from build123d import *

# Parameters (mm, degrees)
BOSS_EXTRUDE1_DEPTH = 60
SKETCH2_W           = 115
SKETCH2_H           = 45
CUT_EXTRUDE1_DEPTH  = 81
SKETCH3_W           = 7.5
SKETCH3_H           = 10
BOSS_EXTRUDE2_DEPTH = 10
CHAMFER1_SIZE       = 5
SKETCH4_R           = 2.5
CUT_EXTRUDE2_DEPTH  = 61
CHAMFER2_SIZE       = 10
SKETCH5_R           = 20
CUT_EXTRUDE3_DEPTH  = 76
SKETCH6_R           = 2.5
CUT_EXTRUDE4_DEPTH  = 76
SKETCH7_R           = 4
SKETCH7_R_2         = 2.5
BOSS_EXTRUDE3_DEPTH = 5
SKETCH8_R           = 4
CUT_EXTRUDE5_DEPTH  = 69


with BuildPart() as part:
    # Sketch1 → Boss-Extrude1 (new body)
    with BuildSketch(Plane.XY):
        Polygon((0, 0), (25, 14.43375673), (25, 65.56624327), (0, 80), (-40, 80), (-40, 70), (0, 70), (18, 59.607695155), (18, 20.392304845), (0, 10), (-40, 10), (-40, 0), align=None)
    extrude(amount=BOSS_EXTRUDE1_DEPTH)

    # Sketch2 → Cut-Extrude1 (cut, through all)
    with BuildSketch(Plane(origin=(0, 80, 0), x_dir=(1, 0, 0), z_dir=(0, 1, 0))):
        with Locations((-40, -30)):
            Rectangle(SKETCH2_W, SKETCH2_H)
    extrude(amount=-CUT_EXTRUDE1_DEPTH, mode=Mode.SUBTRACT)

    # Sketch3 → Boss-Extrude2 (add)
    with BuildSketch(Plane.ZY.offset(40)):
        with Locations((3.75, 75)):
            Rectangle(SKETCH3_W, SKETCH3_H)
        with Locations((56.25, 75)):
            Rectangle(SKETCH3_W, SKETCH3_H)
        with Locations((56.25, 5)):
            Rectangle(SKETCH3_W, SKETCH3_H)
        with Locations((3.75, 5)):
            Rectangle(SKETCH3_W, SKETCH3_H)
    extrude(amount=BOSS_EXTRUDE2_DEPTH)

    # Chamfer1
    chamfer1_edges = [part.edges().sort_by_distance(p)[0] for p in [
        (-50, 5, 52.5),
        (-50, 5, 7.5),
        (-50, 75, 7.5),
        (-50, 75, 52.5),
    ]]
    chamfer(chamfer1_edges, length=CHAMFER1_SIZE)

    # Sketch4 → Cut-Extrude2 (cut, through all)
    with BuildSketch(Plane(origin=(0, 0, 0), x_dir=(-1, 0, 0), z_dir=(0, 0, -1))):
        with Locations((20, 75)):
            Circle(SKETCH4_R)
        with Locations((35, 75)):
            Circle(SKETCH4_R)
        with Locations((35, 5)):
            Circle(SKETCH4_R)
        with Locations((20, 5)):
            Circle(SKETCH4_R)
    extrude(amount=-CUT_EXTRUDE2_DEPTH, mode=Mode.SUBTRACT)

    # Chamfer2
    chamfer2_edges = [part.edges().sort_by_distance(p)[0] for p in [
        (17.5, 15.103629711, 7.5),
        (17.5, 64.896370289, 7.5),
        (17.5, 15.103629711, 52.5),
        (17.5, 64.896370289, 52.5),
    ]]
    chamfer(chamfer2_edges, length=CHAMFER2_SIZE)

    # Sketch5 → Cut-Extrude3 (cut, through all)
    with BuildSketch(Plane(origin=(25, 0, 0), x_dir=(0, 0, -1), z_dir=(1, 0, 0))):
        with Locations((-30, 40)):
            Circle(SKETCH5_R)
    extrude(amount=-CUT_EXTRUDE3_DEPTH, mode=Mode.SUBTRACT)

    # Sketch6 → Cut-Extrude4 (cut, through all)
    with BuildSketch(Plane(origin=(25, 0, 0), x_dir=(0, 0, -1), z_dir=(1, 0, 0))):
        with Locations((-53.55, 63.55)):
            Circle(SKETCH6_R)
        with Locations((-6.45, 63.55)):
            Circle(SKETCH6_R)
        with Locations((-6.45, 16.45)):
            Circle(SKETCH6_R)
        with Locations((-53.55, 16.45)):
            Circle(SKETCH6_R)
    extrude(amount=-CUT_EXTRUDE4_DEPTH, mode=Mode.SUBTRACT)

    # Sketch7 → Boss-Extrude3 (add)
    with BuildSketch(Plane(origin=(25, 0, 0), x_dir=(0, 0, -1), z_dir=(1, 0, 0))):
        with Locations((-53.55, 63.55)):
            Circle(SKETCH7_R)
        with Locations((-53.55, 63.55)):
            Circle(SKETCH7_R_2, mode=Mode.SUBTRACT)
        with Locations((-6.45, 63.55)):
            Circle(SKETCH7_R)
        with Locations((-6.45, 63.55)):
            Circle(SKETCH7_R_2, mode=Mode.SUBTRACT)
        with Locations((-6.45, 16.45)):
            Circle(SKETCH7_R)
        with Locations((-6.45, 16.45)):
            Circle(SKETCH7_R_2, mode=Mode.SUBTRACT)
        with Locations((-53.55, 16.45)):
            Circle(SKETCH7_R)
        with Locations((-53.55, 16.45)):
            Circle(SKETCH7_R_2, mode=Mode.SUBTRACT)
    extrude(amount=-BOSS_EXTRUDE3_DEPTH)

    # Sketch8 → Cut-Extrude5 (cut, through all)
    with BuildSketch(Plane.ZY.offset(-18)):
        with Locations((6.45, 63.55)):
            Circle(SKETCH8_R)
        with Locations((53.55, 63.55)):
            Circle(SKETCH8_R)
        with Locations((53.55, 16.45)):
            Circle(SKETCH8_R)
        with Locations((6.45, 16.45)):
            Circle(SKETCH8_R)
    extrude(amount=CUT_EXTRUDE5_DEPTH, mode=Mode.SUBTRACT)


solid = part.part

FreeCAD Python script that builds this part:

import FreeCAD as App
import Part
import Sketcher
Q = App.Units.Quantity


def edges_at(feature, points):
    """Names of the edges that pass closest to the given points."""
    edges = feature.Shape.Edges
    near = lambda p: min(range(len(edges)), key=lambda i: edges[i].distToShape(Part.Vertex(*p))[0])
    return sorted({f"Edge{near(p) + 1}" for p in points})


def add_polygon(sketch, points):
    """Adds a closed chain of lines whose ends are joined by coincident constraints."""
    first, n = sketch.GeometryCount, len(points)
    for a, b in zip(points, points[1:] + points[:1]):
        sketch.addGeometry(Part.LineSegment(App.Vector(*a, 0), App.Vector(*b, 0)), False)
    for i in range(n):
        sketch.addConstraint(Sketcher.Constraint("Coincident", first + i, 2, first + (i + 1) % n, 1))

doc = App.newDocument("Part")
body = doc.addObject("PartDesign::Body", "Body")

sketch1 = doc.addObject("Sketcher::SketchObject", "Sketch")
body.addObject(sketch1)
sketch1.AttachmentSupport = (doc.XY_Plane, [""])
sketch1.MapMode = "FlatFace"
add_polygon(sketch1, [(0, 0), (25, 14), (25, 66), (0, 80), (-40, 80), (-40, 70), (0, 70), (18, 60), (18, 20), (0, 10), (-40, 10), (-40, 0)])
sketch1.addConstraint([
    Sketcher.Constraint("Vertical", 1),
    Sketcher.Constraint("Horizontal", 3),
    Sketcher.Constraint("Vertical", 4),
    Sketcher.Constraint("Horizontal", 5),
    Sketcher.Constraint("Vertical", 7),
    Sketcher.Constraint("Horizontal", 9),
    Sketcher.Constraint("Vertical", 10),
    Sketcher.Constraint("Horizontal", 11),
    Sketcher.Constraint("Coincident", 11, 2, -1, 1),
    Sketcher.Constraint("PointOnObject", 2, 2, -2),
    Sketcher.Constraint("PointOnObject", 5, 2, -2),
    Sketcher.Constraint("PointOnObject", 8, 2, -2),
    Sketcher.Constraint("Parallel", 2, 6),
    Sketcher.Constraint("Parallel", 0, 8),
    Sketcher.Constraint("Vertical", 4, 2, 9, 2),
    Sketcher.Constraint("Equal", 4, 10),
    Sketcher.Constraint("Equal", 0, 2),
    Sketcher.Constraint("DistanceX", 3, 2, 3, 1, 40.0),
    Sketcher.Constraint("DistanceY", 4, 2, 4, 1, 10.0),
    Sketcher.Constraint("Angle", 0, Q("30 deg")),
    Sketcher.Constraint("DistanceX", -1, 1, 0, 2, 25.0),
    Sketcher.Constraint("DistanceY", -1, 1, 2, 2, 80.0),
    Sketcher.Constraint("DistanceX", -1, 1, 6, 2, 18.0),
])
pad1 = doc.addObject("PartDesign::Pad", "Pad")
body.addObject(pad1)
pad1.Profile = sketch1
pad1.Length = 60

sketch2 = doc.addObject("Sketcher::SketchObject", "Sketch001")
body.addObject(sketch2)
sketch2.AttachmentSupport = (doc.XZ_Plane, [""])
sketch2.MapMode = "FlatFace"
sketch2.AttachmentOffset = App.Placement(App.Vector(0, 0, -80), App.Rotation())
add_polygon(sketch2, [(-98, 8), (-98, 52), (18, 52), (18, 8)])
sketch2.addConstraint([
    Sketcher.Constraint("Vertical", 0),
    Sketcher.Constraint("Horizontal", 1),
    Sketcher.Constraint("Vertical", 2),
    Sketcher.Constraint("Horizontal", 3),
    Sketcher.Constraint("DistanceX", 1, 1, 1, 2, 115.0),
    Sketcher.Constraint("DistanceY", 0, 1, 0, 2, 45.0),
    Sketcher.Constraint("DistanceX", 0, 2, -1, 1, 97.5),
    Sketcher.Constraint("DistanceY", -1, 1, 0, 2, 52.5),
])
pocket1 = doc.addObject("PartDesign::Pocket", "Pocket")
body.addObject(pocket1)
pocket1.Profile = sketch2
pocket1.Type = "ThroughAll"
pocket1.Reversed = True

sketch3 = doc.addObject("Sketcher::SketchObject", "Sketch002")
body.addObject(sketch3)
sketch3.AttachmentSupport = (doc.YZ_Plane, [""])
sketch3.MapMode = "FlatFace"
sketch3.AttachmentOffset = App.Placement(App.Vector(0, 0, -40), App.Rotation())
add_polygon(sketch3, [(80, 0), (70, 0), (70, 8), (80, 8)])
add_polygon(sketch3, [(80, 52), (70, 52), (70, 60), (80, 60)])
add_polygon(sketch3, [(10, 52), (0, 52), (0, 60), (10, 60)])
add_polygon(sketch3, [(10, 0), (0, 0), (0, 8), (10, 8)])
sketch3.addConstraint([
    Sketcher.Constraint("Horizontal", 0),
    Sketcher.Constraint("Vertical", 1),
    Sketcher.Constraint("Horizontal", 2),
    Sketcher.Constraint("Vertical", 3),
    Sketcher.Constraint("Horizontal", 4),
    Sketcher.Constraint("Vertical", 5),
    Sketcher.Constraint("Horizontal", 6),
    Sketcher.Constraint("Vertical", 7),
    Sketcher.Constraint("Horizontal", 8),
    Sketcher.Constraint("Vertical", 9),
    Sketcher.Constraint("Horizontal", 10),
    Sketcher.Constraint("Vertical", 11),
    Sketcher.Constraint("Horizontal", 12),
    Sketcher.Constraint("Vertical", 13),
    Sketcher.Constraint("Horizontal", 14),
    Sketcher.Constraint("Vertical", 15),
    Sketcher.Constraint("Coincident", 12, 2, -1, 1),
    Sketcher.Constraint("PointOnObject", 0, 2, -1),
    Sketcher.Constraint("PointOnObject", 8, 2, -2),
    Sketcher.Constraint("Horizontal", 7, 2, 8, 2),
    Sketcher.Constraint("Horizontal", 6, 2, 9, 2),
    Sketcher.Constraint("Horizontal", 2, 2, 13, 2),
    Sketcher.Constraint("Vertical", 1, 2, 4, 2),
    Sketcher.Constraint("Vertical", 3, 2, 6, 2),
    Sketcher.Constraint("Vertical", 11, 2, 14, 2),
    Sketcher.Constraint("Equal", 6, 8),
    Sketcher.Constraint("Equal", 3, 5),
    Sketcher.Constraint("DistanceX", 0, 2, 0, 1, 10.0),
    Sketcher.Constraint("DistanceY", 1, 1, 1, 2, 7.5),
    Sketcher.Constraint("DistanceX", -1, 1, 0, 2, 70.0),
    Sketcher.Constraint("DistanceY", -1, 1, 5, 2, 60.0),
])
pad2 = doc.addObject("PartDesign::Pad", "Pad001")
body.addObject(pad2)
pad2.Profile = sketch3
pad2.Length = 10
pad2.Reversed = True
doc.recompute()

chamfer = doc.addObject("PartDesign::Chamfer", "Chamfer")
body.addObject(chamfer)
chamfer.Base = (pad2, edges_at(pad2, [
    (-50, 5, 52.5),
    (-50, 5, 7.5),
    (-50, 75, 7.5),
    (-50, 75, 52.5),
]))
chamfer.Size = 5

sketch4 = doc.addObject("Sketcher::SketchObject", "Sketch003")
body.addObject(sketch4)
sketch4.AttachmentSupport = (doc.XY_Plane, [""])
sketch4.MapMode = "FlatFace"
sketch4.addGeometry([
    Part.Circle(App.Vector(-20, 75, 0), App.Vector(0, 0, 1), 2.5),
    Part.Circle(App.Vector(-35, 75, 0), App.Vector(0, 0, 1), 2.5),
    Part.Circle(App.Vector(-35, 5, 0), App.Vector(0, 0, 1), 2.5),
    Part.Circle(App.Vector(-20, 5, 0), App.Vector(0, 0, 1), 2.5),
], False)
sketch4.addConstraint([
    Sketcher.Constraint("Equal", 0, 1),
    Sketcher.Constraint("Equal", 1, 2),
    Sketcher.Constraint("Equal", 2, 3),
    Sketcher.Constraint("Horizontal", 0, 3, 1, 3),
    Sketcher.Constraint("Horizontal", 2, 3, 3, 3),
    Sketcher.Constraint("Vertical", 1, 3, 2, 3),
    Sketcher.Constraint("Vertical", 0, 3, 3, 3),
    Sketcher.Constraint("Diameter", 0, 5.0),
    Sketcher.Constraint("DistanceX", 0, 3, -1, 1, 20.0),
    Sketcher.Constraint("DistanceY", -1, 1, 0, 3, 75.0),
    Sketcher.Constraint("DistanceX", 1, 3, -1, 1, 35.0),
    Sketcher.Constraint("DistanceY", -1, 1, 2, 3, 5.0),
])
pocket2 = doc.addObject("PartDesign::Pocket", "Pocket001")
body.addObject(pocket2)
pocket2.Profile = sketch4
pocket2.Type = "ThroughAll"
pocket2.Reversed = True
doc.recompute()

chamfer2 = doc.addObject("PartDesign::Chamfer", "Chamfer001")
body.addObject(chamfer2)
chamfer2.Base = (pocket2, edges_at(pocket2, [
    (17.5, 15.104, 7.5),
    (17.5, 64.896, 7.5),
    (17.5, 15.104, 52.5),
    (17.5, 64.896, 52.5),
]))
chamfer2.Size = 10

sketch5 = doc.addObject("Sketcher::SketchObject", "Sketch004")
body.addObject(sketch5)
sketch5.AttachmentSupport = (doc.YZ_Plane, [""])
sketch5.MapMode = "FlatFace"
sketch5.AttachmentOffset = App.Placement(App.Vector(0, 0, 25), App.Rotation())
sketch5.addGeometry(Part.Circle(App.Vector(40, 30, 0), App.Vector(0, 0, 1), 20), False)
sketch5.addConstraint([
    Sketcher.Constraint("Diameter", 0, 40.0),
    Sketcher.Constraint("DistanceX", -1, 1, 0, 3, 40.0),
    Sketcher.Constraint("DistanceY", -1, 1, 0, 3, 30.0),
])
pocket3 = doc.addObject("PartDesign::Pocket", "Pocket002")
body.addObject(pocket3)
pocket3.Profile = sketch5
pocket3.Type = "ThroughAll"

sketch6 = doc.addObject("Sketcher::SketchObject", "Sketch005")
body.addObject(sketch6)
sketch6.AttachmentSupport = (doc.YZ_Plane, [""])
sketch6.MapMode = "FlatFace"
sketch6.AttachmentOffset = App.Placement(App.Vector(0, 0, 25), App.Rotation())
sketch6.addGeometry([
    Part.Circle(App.Vector(63.5, 53.5, 0), App.Vector(0, 0, 1), 2.5),
    Part.Circle(App.Vector(63.5, 6.5, 0), App.Vector(0, 0, 1), 2.5),
    Part.Circle(App.Vector(16.4, 6.5, 0), App.Vector(0, 0, 1), 2.5),
    Part.Circle(App.Vector(16.4, 53.5, 0), App.Vector(0, 0, 1), 2.5),
], False)
sketch6.addConstraint([
    Sketcher.Constraint("Equal", 0, 1),
    Sketcher.Constraint("Equal", 1, 2),
    Sketcher.Constraint("Equal", 2, 3),
    Sketcher.Constraint("Horizontal", 1, 3, 2, 3),
    Sketcher.Constraint("Horizontal", 0, 3, 3, 3),
    Sketcher.Constraint("Vertical", 0, 3, 1, 3),
    Sketcher.Constraint("Vertical", 2, 3, 3, 3),
    Sketcher.Constraint("Diameter", 0, 5.0),
    Sketcher.Constraint("DistanceY", 1, 3, 0, 3, 47.1),
    Sketcher.Constraint("DistanceX", 2, 3, 1, 3, 47.1),
    Sketcher.Constraint("DistanceX", -1, 1, 0, 3, 63.55),
    Sketcher.Constraint("DistanceY", -1, 1, 0, 3, 53.55),
])
pocket4 = doc.addObject("PartDesign::Pocket", "Pocket003")
body.addObject(pocket4)
pocket4.Profile = sketch6
pocket4.Type = "ThroughAll"

sketch7 = doc.addObject("Sketcher::SketchObject", "Sketch006")
body.addObject(sketch7)
sketch7.AttachmentSupport = (doc.YZ_Plane, [""])
sketch7.MapMode = "FlatFace"
sketch7.AttachmentOffset = App.Placement(App.Vector(0, 0, 25), App.Rotation())
sketch7.addGeometry([
    Part.Circle(App.Vector(63.5, 53.5, 0), App.Vector(0, 0, 1), 4),
    Part.Circle(App.Vector(63.5, 53.5, 0), App.Vector(0, 0, 1), 2.5),
    Part.Circle(App.Vector(63.5, 6.5, 0), App.Vector(0, 0, 1), 4),
    Part.Circle(App.Vector(63.5, 6.5, 0), App.Vector(0, 0, 1), 2.5),
    Part.Circle(App.Vector(16.4, 6.5, 0), App.Vector(0, 0, 1), 4),
    Part.Circle(App.Vector(16.4, 6.5, 0), App.Vector(0, 0, 1), 2.5),
    Part.Circle(App.Vector(16.4, 53.5, 0), App.Vector(0, 0, 1), 4),
    Part.Circle(App.Vector(16.4, 53.5, 0), App.Vector(0, 0, 1), 2.5),
], False)
sketch7.addConstraint([
    Sketcher.Constraint("Coincident", 1, 3, 0, 3),
    Sketcher.Constraint("Coincident", 3, 3, 2, 3),
    Sketcher.Constraint("Coincident", 5, 3, 4, 3),
    Sketcher.Constraint("Coincident", 7, 3, 6, 3),
    Sketcher.Constraint("Equal", 0, 2),
    Sketcher.Constraint("Equal", 1, 3),
    Sketcher.Constraint("Equal", 2, 4),
    Sketcher.Constraint("Equal", 3, 5),
    Sketcher.Constraint("Equal", 4, 6),
    Sketcher.Constraint("Equal", 5, 7),
    Sketcher.Constraint("Horizontal", 3, 3, 4, 3),
    Sketcher.Constraint("Horizontal", 1, 3, 6, 3),
    Sketcher.Constraint("Vertical", 1, 3, 2, 3),
    Sketcher.Constraint("Vertical", 5, 3, 6, 3),
    Sketcher.Constraint("Diameter", 0, 8.0),
    Sketcher.Constraint("Diameter", 1, 5.0),
    Sketcher.Constraint("DistanceY", 2, 3, 0, 3, 47.1),
    Sketcher.Constraint("DistanceX", 4, 3, 2, 3, 47.1),
    Sketcher.Constraint("DistanceX", -1, 1, 0, 3, 63.55),
    Sketcher.Constraint("DistanceY", -1, 1, 0, 3, 53.55),
])
pad3 = doc.addObject("PartDesign::Pad", "Pad002")
body.addObject(pad3)
pad3.Profile = sketch7
pad3.Length = 5
pad3.Reversed = True

sketch8 = doc.addObject("Sketcher::SketchObject", "Sketch007")
body.addObject(sketch8)
sketch8.AttachmentSupport = (doc.YZ_Plane, [""])
sketch8.MapMode = "FlatFace"
sketch8.AttachmentOffset = App.Placement(App.Vector(0, 0, 18), App.Rotation())
sketch8.addGeometry([
    Part.Circle(App.Vector(63.5, 6.5, 0), App.Vector(0, 0, 1), 4),
    Part.Circle(App.Vector(63.5, 53.5, 0), App.Vector(0, 0, 1), 4),
    Part.Circle(App.Vector(16.4, 53.5, 0), App.Vector(0, 0, 1), 4),
    Part.Circle(App.Vector(16.4, 6.5, 0), App.Vector(0, 0, 1), 4),
], False)
sketch8.addConstraint([
    Sketcher.Constraint("Equal", 0, 1),
    Sketcher.Constraint("Equal", 1, 2),
    Sketcher.Constraint("Equal", 2, 3),
    Sketcher.Constraint("Horizontal", 1, 3, 2, 3),
    Sketcher.Constraint("Horizontal", 0, 3, 3, 3),
    Sketcher.Constraint("Vertical", 0, 3, 1, 3),
    Sketcher.Constraint("Vertical", 2, 3, 3, 3),
    Sketcher.Constraint("Diameter", 0, 8.0),
    Sketcher.Constraint("DistanceY", 0, 3, 1, 3, 47.1),
    Sketcher.Constraint("DistanceX", 2, 3, 1, 3, 47.1),
    Sketcher.Constraint("DistanceX", -1, 1, 0, 3, 63.55),
    Sketcher.Constraint("DistanceY", -1, 1, 0, 3, 6.45),
])
pocket5 = doc.addObject("PartDesign::Pocket", "Pocket004")
body.addObject(pocket5)
pocket5.Profile = sketch8
pocket5.Type = "ThroughAll"

doc.recompute()
